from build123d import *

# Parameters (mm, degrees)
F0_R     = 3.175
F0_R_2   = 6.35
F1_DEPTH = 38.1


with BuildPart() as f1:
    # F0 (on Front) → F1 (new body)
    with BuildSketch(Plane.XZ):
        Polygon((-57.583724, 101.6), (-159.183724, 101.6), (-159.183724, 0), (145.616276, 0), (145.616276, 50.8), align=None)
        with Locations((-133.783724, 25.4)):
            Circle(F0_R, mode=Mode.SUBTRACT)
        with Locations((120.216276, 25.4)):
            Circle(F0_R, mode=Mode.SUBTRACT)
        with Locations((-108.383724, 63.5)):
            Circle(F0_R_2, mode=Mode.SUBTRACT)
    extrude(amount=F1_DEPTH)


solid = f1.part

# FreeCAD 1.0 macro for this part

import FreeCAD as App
import Part
import Sketcher
from FreeCAD import Vector
Q = App.Units.Quantity

doc = App.newDocument("Part")
body = doc.addObject("PartDesign::Body", "Body")

# Sketch on XZ plane
sketch1 = body.newObject("Sketcher::SketchObject", "Sketch")
sketch1.AttachmentSupport = (doc.getObject("XZ_Plane"), [""])
sketch1.MapMode = "FlatFace"
sketch1.addGeometry(Part.LineSegment(Vector(-57.6, 101.6, 0), Vector(-159.2, 101.6, 0)), False)
sketch1.addGeometry(Part.LineSegment(Vector(-159.2, 101.6, 0), Vector(-159.2, 0, 0)), False)
sketch1.addGeometry(Part.LineSegment(Vector(-159.2, 0, 0), Vector(145.6, 0, 0)), False)
sketch1.addGeometry(Part.LineSegment(Vector(145.6, 0, 0), Vector(145.6, 50.8, 0)), False)
sketch1.addGeometry(Part.LineSegment(Vector(145.6, 50.8, 0), Vector(-57.6, 101.6, 0)), False)
sketch1.addGeometry(Part.Circle(Vector(-133.8, 25.4, 0), Vector(0, 0, 1), 3.2), False)
sketch1.addGeometry(Part.Circle(Vector(120.2, 25.4, 0), Vector(0, 0, 1), 3.2), False)
sketch1.addGeometry(Part.Circle(Vector(-108.4, 63.5, 0), Vector(0, 0, 1), 6.3), False)
sketch1.addConstraint(Sketcher.Constraint("Coincident", 0, 2, 1, 1))
sketch1.addConstraint(Sketcher.Constraint("Coincident", 1, 2, 2, 1))
sketch1.addConstraint(Sketcher.Constraint("Coincident", 2, 2, 3, 1))
sketch1.addConstraint(Sketcher.Constraint("Coincident", 3, 2, 4, 1))
sketch1.addConstraint(Sketcher.Constraint("Coincident", 4, 2, 0, 1))
sketch1.addConstraint(Sketcher.Constraint("Horizontal", 0))
sketch1.addConstraint(Sketcher.Constraint("Vertical", 1))
sketch1.addConstraint(Sketcher.Constraint("Horizontal", 2))
sketch1.addConstraint(Sketcher.Constraint("Vertical", 3))
sketch1.addConstraint(Sketcher.Constraint("Equal", 5, 6))
sketch1.addConstraint(Sketcher.Constraint("PointOnObject", 1, 2, -1))
sketch1.addConstraint(Sketcher.Constraint("Horizontal", 5, 3, 6, 3))
sketch1.addConstraint(Sketcher.Constraint("Equal", 0, 1))
sketch1.addConstraint(Sketcher.Constraint("Diameter", 7, Q("0.5 in")))
sketch1.addConstraint(Sketcher.Constraint("Diameter", 5, Q("0.25 in")))
sketch1.addConstraint(Sketcher.Constraint("DistanceX", 0, 2, 0, 1, Q("4 in")))
sketch1.addConstraint(Sketcher.Constraint("DistanceX", 2, 1, 2, 2, Q("12 in")))
sketch1.addConstraint(Sketcher.Constraint("DistanceY", 3, 1, 3, 2, Q("2 in")))
sketch1.addConstraint(Sketcher.Constraint("DistanceY", -1, 1, 5, 3, Q("1 in")))
sketch1.addConstraint(Sketcher.Constraint("DistanceX", 5, 3, 6, 3, Q("10 in")))
sketch1.addConstraint(Sketcher.Constraint("DistanceX", 5, 3, 7, 3, Q("1 in")))
sketch1.addConstraint(Sketcher.Constraint("DistanceX", 0, 2, 7, 3, Q("2 in")))
sketch1.addConstraint(Sketcher.Constraint("DistanceY", -1, 1, 7, 3, Q("2.5 in")))
sketch1.addConstraint(Sketcher.Constraint("DistanceX", 5, 3, -1, 1, Q("133.783724 mm")))
pad1 = body.newObject("PartDesign::Pad", "Pad")
pad1.Profile = sketch1
pad1.Length = Q("1.5 in")

doc.recompute()
